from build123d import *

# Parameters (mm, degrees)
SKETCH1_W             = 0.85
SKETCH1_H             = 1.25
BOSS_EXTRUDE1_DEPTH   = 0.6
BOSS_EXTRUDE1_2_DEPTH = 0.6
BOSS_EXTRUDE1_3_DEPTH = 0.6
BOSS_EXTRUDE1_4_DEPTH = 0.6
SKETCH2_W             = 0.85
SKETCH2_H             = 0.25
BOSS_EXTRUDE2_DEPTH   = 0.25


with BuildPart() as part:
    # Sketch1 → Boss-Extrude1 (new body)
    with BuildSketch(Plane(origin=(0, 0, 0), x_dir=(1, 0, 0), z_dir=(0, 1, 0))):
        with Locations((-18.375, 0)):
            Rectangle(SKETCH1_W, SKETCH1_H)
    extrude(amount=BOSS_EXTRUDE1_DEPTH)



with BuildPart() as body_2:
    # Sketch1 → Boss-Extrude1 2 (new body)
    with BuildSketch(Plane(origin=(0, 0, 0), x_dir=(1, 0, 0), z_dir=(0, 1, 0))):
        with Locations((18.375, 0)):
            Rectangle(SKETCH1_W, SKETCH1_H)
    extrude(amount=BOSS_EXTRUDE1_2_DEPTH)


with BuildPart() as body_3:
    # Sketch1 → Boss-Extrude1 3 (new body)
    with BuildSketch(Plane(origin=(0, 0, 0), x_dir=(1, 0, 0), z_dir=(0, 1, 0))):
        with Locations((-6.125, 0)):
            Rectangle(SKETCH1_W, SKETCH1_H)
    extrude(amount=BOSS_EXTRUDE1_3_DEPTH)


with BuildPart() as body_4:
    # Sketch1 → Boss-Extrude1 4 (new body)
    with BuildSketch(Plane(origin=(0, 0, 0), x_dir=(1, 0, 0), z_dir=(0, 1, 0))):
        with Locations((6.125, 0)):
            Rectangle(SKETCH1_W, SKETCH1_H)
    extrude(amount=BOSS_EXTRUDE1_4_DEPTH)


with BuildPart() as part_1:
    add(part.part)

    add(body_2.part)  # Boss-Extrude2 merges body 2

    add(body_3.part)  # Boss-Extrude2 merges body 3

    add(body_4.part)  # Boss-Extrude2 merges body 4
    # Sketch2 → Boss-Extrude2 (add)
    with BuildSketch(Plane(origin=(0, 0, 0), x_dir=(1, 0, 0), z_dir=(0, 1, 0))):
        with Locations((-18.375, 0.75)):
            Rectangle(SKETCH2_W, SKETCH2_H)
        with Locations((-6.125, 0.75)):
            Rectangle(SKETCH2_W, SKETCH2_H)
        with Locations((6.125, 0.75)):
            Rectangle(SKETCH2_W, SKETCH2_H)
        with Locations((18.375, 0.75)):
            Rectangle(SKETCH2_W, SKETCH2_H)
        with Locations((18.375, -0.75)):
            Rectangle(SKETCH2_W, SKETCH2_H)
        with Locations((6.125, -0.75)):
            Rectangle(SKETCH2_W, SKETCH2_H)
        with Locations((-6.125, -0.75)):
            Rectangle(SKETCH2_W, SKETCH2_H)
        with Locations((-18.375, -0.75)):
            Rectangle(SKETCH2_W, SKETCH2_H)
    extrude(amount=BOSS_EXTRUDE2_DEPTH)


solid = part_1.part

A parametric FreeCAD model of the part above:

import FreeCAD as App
import Part
import Sketcher

V = App.Vector
Q = App.Units.Quantity


def add_polygon(sketch, points):
    """Adds a closed chain of lines whose ends are joined by coincident constraints."""
    first, n = sketch.GeometryCount, len(points)
    for a, b in zip(points, points[1:] + points[:1]):
        sketch.addGeometry(Part.LineSegment(App.Vector(*a, 0), App.Vector(*b, 0)), False)
    for i in range(n):
        sketch.addConstraint(Sketcher.Constraint("Coincident", first + i, 2, first + (i + 1) % n, 1))

doc = App.newDocument("Part")
params = doc.addObject("Spreadsheet::Sheet", "Params")
for row, (alias, value) in enumerate([
    ("sketch1_width", "0.85 mm"),
    ("sketch1_height", "1.25 mm"),
    ("pad1_length", "0.6 mm"),
    ("sketch2_width", "0.85 mm"),
    ("sketch2_height", "1.25 mm"),
    ("pad2_length", "0.6 mm"),
    ("sketch3_width", "0.85 mm"),
    ("sketch3_height", "1.25 mm"),
    ("pad3_length", "0.6 mm"),
    ("sketch4_width", "0.85 mm"),
    ("sketch4_height", "1.25 mm"),
    ("pad4_length", "0.6 mm"),
    ("sketch5_width", "0.85 mm"),
    ("sketch5_height", "0.25 mm"),
    ("pad5_length", "0.25 mm"),
], start=1):
    params.set(f"A{row}", alias)
    params.set(f"B{row}", "=" + value)
    params.setAlias(f"B{row}", alias)

body = doc.addObject("PartDesign::Body", "Body")

sketch1 = body.newObject("Sketcher::SketchObject", "Sketch")
sketch1.AttachmentSupport = (doc.getObject("XZ_Plane"), [""])
sketch1.MapMode = "FlatFace"
add_polygon(sketch1, [(-18.8, -0.6), (-18.8, 0.6), (-17.9, 0.6), (-17.9, -0.6)])
sketch1.addConstraint(Sketcher.Constraint("Vertical", 0))
sketch1.addConstraint(Sketcher.Constraint("Horizontal", 1))
sketch1.addConstraint(Sketcher.Constraint("Vertical", 2))
sketch1.addConstraint(Sketcher.Constraint("Horizontal", 3))
sketch1.addConstraint(Sketcher.Constraint("DistanceX", 1, 1, 1, 2, Q("0.85 mm")))
sketch1.addConstraint(Sketcher.Constraint("DistanceY", 0, 1, 0, 2, Q("1.25 mm")))
sketch1.addConstraint(Sketcher.Constraint("DistanceX", 0, 2, -1, 1, Q("18.8 mm")))
sketch1.addConstraint(Sketcher.Constraint("DistanceY", -1, 1, 0, 2, Q("0.625 mm")))
sketch1.setExpression("Constraints[8]", "Params.sketch1_width")
sketch1.setExpression("Constraints[9]", "Params.sketch1_height")
pad1 = body.newObject("PartDesign::Pad", "Pad")
pad1.Profile = sketch1
pad1.setExpression("Length", "Params.pad1_length")
pad1.Reversed = True
body2 = doc.addObject("PartDesign::Body", "Body001")

sketch2 = body2.newObject("Sketcher::SketchObject", "Sketch001")
sketch2.AttachmentSupport = (doc.getObject("XZ_Plane001"), [""])
sketch2.MapMode = "FlatFace"
add_polygon(sketch2, [(17.9, -0.6), (17.9, 0.6), (18.8, 0.6), (18.8, -0.6)])
sketch2.addConstraint(Sketcher.Constraint("Vertical", 0))
sketch2.addConstraint(Sketcher.Constraint("Horizontal", 1))
sketch2.addConstraint(Sketcher.Constraint("Vertical", 2))
sketch2.addConstraint(Sketcher.Constraint("Horizontal", 3))
sketch2.addConstraint(Sketcher.Constraint("DistanceX", 1, 1, 1, 2, Q("0.85 mm")))
sketch2.addConstraint(Sketcher.Constraint("DistanceY", 0, 1, 0, 2, Q("1.25 mm")))
sketch2.addConstraint(Sketcher.Constraint("DistanceX", -1, 1, 1, 2, Q("18.8 mm")))
sketch2.addConstraint(Sketcher.Constraint("DistanceY", -1, 1, 0, 2, Q("0.625 mm")))
sketch2.setExpression("Constraints[8]", "Params.sketch2_width")
sketch2.setExpression("Constraints[9]", "Params.sketch2_height")
pad2 = body2.newObject("PartDesign::Pad", "Pad001")
pad2.Profile = sketch2
pad2.setExpression("Length", "Params.pad2_length")
pad2.Reversed = True
body3 = doc.addObject("PartDesign::Body", "Body002")

sketch3 = body3.newObject("Sketcher::SketchObject", "Sketch002")
sketch3.AttachmentSupport = (doc.getObject("XZ_Plane002"), [""])
sketch3.MapMode = "FlatFace"
add_polygon(sketch3, [(-6.5, -0.6), (-6.5, 0.6), (-5.7, 0.6), (-5.7, -0.6)])
sketch3.addConstraint(Sketcher.Constraint("Vertical", 0))
sketch3.addConstraint(Sketcher.Constraint("Horizontal", 1))
sketch3.addConstraint(Sketcher.Constraint("Vertical", 2))
sketch3.addConstraint(Sketcher.Constraint("Horizontal", 3))
sketch3.addConstraint(Sketcher.Constraint("DistanceX", 1, 1, 1, 2, Q("0.85 mm")))
sketch3.addConstraint(Sketcher.Constraint("DistanceY", 0, 1, 0, 2, Q("1.25 mm")))
sketch3.addConstraint(Sketcher.Constraint("DistanceX", 1, 2, -1, 1, Q("5.7 mm")))
sketch3.addConstraint(Sketcher.Constraint("DistanceY", -1, 1, 0, 2, Q("0.625 mm")))
sketch3.setExpression("Constraints[8]", "Params.sketch3_width")
sketch3.setExpression("Constraints[9]", "Params.sketch3_height")
pad3 = body3.newObject("PartDesign::Pad", "Pad002")
pad3.Profile = sketch3
pad3.setExpression("Length", "Params.pad3_length")
pad3.Reversed = True
body4 = doc.addObject("PartDesign::Body", "Body003")

sketch4 = body4.newObject("Sketcher::SketchObject", "Sketch003")
sketch4.AttachmentSupport = (doc.getObject("XZ_Plane003"), [""])
sketch4.MapMode = "FlatFace"
add_polygon(sketch4, [(5.7, -0.6), (5.7, 0.6), (6.5, 0.6), (6.5, -0.6)])
sketch4.addConstraint(Sketcher.Constraint("Vertical", 0))
sketch4.addConstraint(Sketcher.Constraint("Horizontal", 1))
sketch4.addConstraint(Sketcher.Constraint("Vertical", 2))
sketch4.addConstraint(Sketcher.Constraint("Horizontal", 3))
sketch4.addConstraint(Sketcher.Constraint("DistanceX", 1, 1, 1, 2, Q("0.85 mm")))
sketch4.addConstraint(Sketcher.Constraint("DistanceY", 0, 1, 0, 2, Q("1.25 mm")))
sketch4.addConstraint(Sketcher.Constraint("DistanceX", -1, 1, 0, 2, Q("5.7 mm")))
sketch4.addConstraint(Sketcher.Constraint("DistanceY", -1, 1, 0, 2, Q("0.625 mm")))
sketch4.setExpression("Constraints[8]", "Params.sketch4_width")
sketch4.setExpression("Constraints[9]", "Params.sketch4_height")
pad4 = body4.newObject("PartDesign::Pad", "Pad003")
pad4.Profile = sketch4
pad4.setExpression("Length", "Params.pad4_length")
pad4.Reversed = True
body.AllowCompound = True
doc.recompute()

boolean = body.newObject("PartDesign::Boolean", "Boolean")
boolean.Type = "Fuse"
boolean.addObjects([body2])
doc.recompute()

boolean2 = body.newObject("PartDesign::Boolean", "Boolean001")
boolean2.Type = "Fuse"
boolean2.addObjects([body3])
doc.recompute()

boolean3 = body.newObject("PartDesign::Boolean", "Boolean002")
boolean3.Type = "Fuse"
boolean3.addObjects([body4])

sketch5 = body.newObject("Sketcher::SketchObject", "Sketch004")
sketch5.AttachmentSupport = (doc.getObject("XZ_Plane"), [""])
sketch5.MapMode = "FlatFace"
add_polygon(sketch5, [(-18.8, -0.88), (-18.8, -0.62), (-17.95, -0.62), (-17.95, -0.88)])
add_polygon(sketch5, [(-6.55, -0.88), (-6.55, -0.62), (-5.7, -0.62), (-5.7, -0.88)])
add_polygon(sketch5, [(5.7, -0.88), (5.7, -0.62), (6.55, -0.62), (6.55, -0.88)])
add_polygon(sketch5, [(17.95, -0.88), (17.95, -0.62), (18.8, -0.62), (18.8, -0.88)])
add_polygon(sketch5, [(17.95, 0.62), (17.95, 0.88), (18.8, 0.88), (18.8, 0.62)])
add_polygon(sketch5, [(5.7, 0.62), (5.7, 0.88), (6.55, 0.88), (6.55, 0.62)])
add_polygon(sketch5, [(-6.55, 0.62), (-6.55, 0.88), (-5.7, 0.88), (-5.7, 0.62)])
add_polygon(sketch5, [(-18.8, 0.62), (-18.8, 0.88), (-17.95, 0.88), (-17.95, 0.62)])
sketch5.addConstraint(Sketcher.Constraint("Vertical", 0))
sketch5.addConstraint(Sketcher.Constraint("Horizontal", 1))
sketch5.addConstraint(Sketcher.Constraint("Vertical", 2))
sketch5.addConstraint(Sketcher.Constraint("Horizontal", 3))
sketch5.addConstraint(Sketcher.Constraint("Vertical", 4))
sketch5.addConstraint(Sketcher.Constraint("Horizontal", 5))
sketch5.addConstraint(Sketcher.Constraint("Vertical", 6))
sketch5.addConstraint(Sketcher.Constraint("Horizontal", 7))
sketch5.addConstraint(Sketcher.Constraint("Vertical", 8))
sketch5.addConstraint(Sketcher.Constraint("Horizontal", 9))
sketch5.addConstraint(Sketcher.Constraint("Vertical", 10))
sketch5.addConstraint(Sketcher.Constraint("Horizontal", 11))
sketch5.addConstraint(Sketcher.Constraint("Vertical", 12))
sketch5.addConstraint(Sketcher.Constraint("Horizontal", 13))
sketch5.addConstraint(Sketcher.Constraint("Vertical", 14))
sketch5.addConstraint(Sketcher.Constraint("Horizontal", 15))
sketch5.addConstraint(Sketcher.Constraint("Vertical", 16))
sketch5.addConstraint(Sketcher.Constraint("Horizontal", 17))
sketch5.addConstraint(Sketcher.Constraint("Vertical", 18))
sketch5.addConstraint(Sketcher.Constraint("Horizontal", 19))
sketch5.addConstraint(Sketcher.Constraint("Vertical", 20))
sketch5.addConstraint(Sketcher.Constraint("Horizontal", 21))
sketch5.addConstraint(Sketcher.Constraint("Vertical", 22))
sketch5.addConstraint(Sketcher.Constraint("Horizontal", 23))
sketch5.addConstraint(Sketcher.Constraint("Vertical", 24))
sketch5.addConstraint(Sketcher.Constraint("Horizontal", 25))
sketch5.addConstraint(Sketcher.Constraint("Vertical", 26))
sketch5.addConstraint(Sketcher.Constraint("Horizontal", 27))
sketch5.addConstraint(Sketcher.Constraint("Vertical", 28))
sketch5.addConstraint(Sketcher.Constraint("Horizontal", 29))
sketch5.addConstraint(Sketcher.Constraint("Vertical", 30))
sketch5.addConstraint(Sketcher.Constraint("Horizontal", 31))
sketch5.addConstraint(Sketcher.Constraint("Symmetric", 2, 2, 16, 2, -1, 1))
sketch5.addConstraint(Sketcher.Constraint("Symmetric", 0, 2, 18, 2, -1, 1))
sketch5.addConstraint(Sketcher.Constraint("Symmetric", 6, 2, 20, 2, -1, 1))
sketch5.addConstraint(Sketcher.Constraint("Symmetric", 4, 2, 22, 2, -1, 1))
sketch5.addConstraint(Sketcher.Constraint("Symmetric", 10, 2, 24, 2, -1, 1))
sketch5.addConstraint(Sketcher.Constraint("Symmetric", 8, 2, 26, 2, -1, 1))
sketch5.addConstraint(Sketcher.Constraint("Symmetric", 14, 2, 28, 2, -1, 1))
sketch5.addConstraint(Sketcher.Constraint("Symmetric", 12, 2, 30, 2, -1, 1))
sketch5.addConstraint(Sketcher.Constraint("Symmetric", 5, 2, 8, 2, -2))
sketch5.addConstraint(Sketcher.Constraint("Symmetric", 7, 2, 10, 2, -2))
sketch5.addConstraint(Sketcher.Constraint("Symmetric", 1, 2, 12, 2, -2))
sketch5.addConstraint(Sketcher.Constraint("Symmetric", 3, 2, 14, 2, -2))
sketch5.addConstraint(Sketcher.Constraint("Horizontal", 1, 2, 4, 2))
sketch5.addConstraint(Sketcher.Constraint("Horizontal", 3, 2, 6, 2))
sketch5.addConstraint(Sketcher.Constraint("Equal", 3, 5))
sketch5.addConstraint(Sketcher.Constraint("DistanceX", 1, 1, 1, 2, Q("0.85 mm")))
sketch5.addConstraint(Sketcher.Constraint("DistanceY", 0, 1, 0, 2, Q("0.25 mm")))
sketch5.addConstraint(Sketcher.Constraint("DistanceX", 0, 2, -1, 1, Q("18.8 mm")))
sketch5.addConstraint(Sketcher.Constraint("DistanceX", 5, 2, -1, 1, Q("5.7 mm")))
sketch5.addConstraint(Sketcher.Constraint("DistanceY", 12, 2, 16, 2, Q("1.5 mm")))
sketch5.setExpression("Constraints[79]", "Params.sketch5_width")
sketch5.setExpression("Constraints[80]", "Params.sketch5_height")
pad5 = body.newObject("PartDesign::Pad", "Pad004")
pad5.Profile = sketch5
pad5.setExpression("Length", "Params.pad5_length")
pad5.Reversed = True

doc.recompute()
